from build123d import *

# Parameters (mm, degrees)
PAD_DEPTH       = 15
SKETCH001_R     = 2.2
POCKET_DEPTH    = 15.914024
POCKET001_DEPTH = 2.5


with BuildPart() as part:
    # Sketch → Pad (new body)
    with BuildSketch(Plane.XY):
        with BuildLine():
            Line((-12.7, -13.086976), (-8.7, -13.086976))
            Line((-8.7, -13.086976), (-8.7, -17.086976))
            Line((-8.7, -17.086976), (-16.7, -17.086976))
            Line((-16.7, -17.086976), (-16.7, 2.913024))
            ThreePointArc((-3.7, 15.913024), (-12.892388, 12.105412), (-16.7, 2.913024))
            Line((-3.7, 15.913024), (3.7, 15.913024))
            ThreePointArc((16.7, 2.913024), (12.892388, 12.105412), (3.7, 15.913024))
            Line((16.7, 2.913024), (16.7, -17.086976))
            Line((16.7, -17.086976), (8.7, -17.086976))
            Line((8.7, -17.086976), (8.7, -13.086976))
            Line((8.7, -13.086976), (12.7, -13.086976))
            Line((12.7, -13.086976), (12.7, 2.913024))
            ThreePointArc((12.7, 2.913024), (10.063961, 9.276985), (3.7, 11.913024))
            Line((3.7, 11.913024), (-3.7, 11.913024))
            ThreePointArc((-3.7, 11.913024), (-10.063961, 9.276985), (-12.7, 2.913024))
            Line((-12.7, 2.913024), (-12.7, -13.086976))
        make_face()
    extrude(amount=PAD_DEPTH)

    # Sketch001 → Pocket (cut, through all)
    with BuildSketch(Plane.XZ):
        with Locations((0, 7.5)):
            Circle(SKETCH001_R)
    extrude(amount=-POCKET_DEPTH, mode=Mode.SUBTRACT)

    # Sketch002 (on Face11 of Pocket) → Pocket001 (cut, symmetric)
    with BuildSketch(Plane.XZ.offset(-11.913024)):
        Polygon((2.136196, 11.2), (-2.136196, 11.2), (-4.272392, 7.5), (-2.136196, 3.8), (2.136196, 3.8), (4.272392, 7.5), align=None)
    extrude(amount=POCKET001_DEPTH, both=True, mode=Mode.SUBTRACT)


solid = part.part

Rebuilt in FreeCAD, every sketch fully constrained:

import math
import FreeCAD as App
import Part
import Sketcher

V = App.Vector
Q = App.Units.Quantity


def add_polygon(sketch, points):
    """Adds a closed chain of lines whose ends are joined by coincident constraints."""
    first, n = sketch.GeometryCount, len(points)
    for a, b in zip(points, points[1:] + points[:1]):
        sketch.addGeometry(Part.LineSegment(App.Vector(*a, 0), App.Vector(*b, 0)), False)
    for i in range(n):
        sketch.addConstraint(Sketcher.Constraint("Coincident", first + i, 2, first + (i + 1) % n, 1))

doc = App.newDocument("Part")
body = doc.addObject("PartDesign::Body", "Body")

sketch1 = body.newObject("Sketcher::SketchObject", "Sketch")
sketch1.AttachmentSupport = (doc.getObject("XY_Plane"), [""])
sketch1.MapMode = "FlatFace"
sketch1.addGeometry([
    Part.LineSegment(V(-8.7, -13.1, 0), V(-12.7, -13.1, 0)),
    Part.LineSegment(V(-12.7, -13.1, 0), V(-12.7, 2.9, 0)),
    Part.ArcOfCircle(Part.Circle(V(-3.7, 2.9, 0), V(0, 0, 1), 9), math.radians(90), math.radians(180)),
    Part.LineSegment(V(-3.7, 11.9, 0), V(3.7, 11.9, 0)),
    Part.ArcOfCircle(Part.Circle(V(3.7, 2.9, 0), V(0, 0, 1), 9), math.radians(0), math.radians(90)),
    Part.LineSegment(V(12.7, 2.9, 0), V(12.7, -13.1, 0)),
    Part.LineSegment(V(12.7, -13.1, 0), V(8.7, -13.1, 0)),
    Part.LineSegment(V(8.7, -13.1, 0), V(8.7, -17.1, 0)),
    Part.LineSegment(V(8.7, -17.1, 0), V(16.7, -17.1, 0)),
    Part.LineSegment(V(16.7, -17.1, 0), V(16.7, 2.9, 0)),
    Part.ArcOfCircle(Part.Circle(V(3.7, 2.9, 0), V(0, 0, 1), 13), math.radians(0), math.radians(90)),
    Part.LineSegment(V(3.7, 15.9, 0), V(-3.7, 15.9, 0)),
    Part.ArcOfCircle(Part.Circle(V(-3.7, 2.9, 0), V(0, 0, 1), 13), math.radians(90), math.radians(180)),
    Part.LineSegment(V(-16.7, 2.9, 0), V(-16.7, -17.1, 0)),
    Part.LineSegment(V(-16.7, -17.1, 0), V(-8.7, -17.1, 0)),
    Part.LineSegment(V(-8.7, -17.1, 0), V(-8.7, -13.1, 0)),
], False)
sketch1.addConstraint([
    Sketcher.Constraint("Coincident", 0, 2, 1, 1),
    Sketcher.Constraint("Tangent", 1, 2, 2, 2),
    Sketcher.Constraint("Tangent", 2, 1, 3, 1),
    Sketcher.Constraint("Tangent", 3, 2, 4, 2),
    Sketcher.Constraint("Tangent", 4, 1, 5, 1),
    Sketcher.Constraint("Coincident", 5, 2, 6, 1),
    Sketcher.Constraint("Coincident", 6, 2, 7, 1),
    Sketcher.Constraint("Coincident", 7, 2, 8, 1),
    Sketcher.Constraint("Coincident", 8, 2, 9, 1),
    Sketcher.Constraint("Tangent", 9, 2, 10, 1),
    Sketcher.Constraint("Tangent", 10, 2, 11, 1),
    Sketcher.Constraint("Tangent", 11, 2, 12, 1),
    Sketcher.Constraint("Tangent", 12, 2, 13, 1),
    Sketcher.Constraint("Coincident", 13, 2, 14, 1),
    Sketcher.Constraint("Coincident", 14, 2, 15, 1),
    Sketcher.Constraint("Coincident", 15, 2, 0, 1),
    Sketcher.Constraint("Horizontal", 0),
    Sketcher.Constraint("Vertical", 1),
    Sketcher.Constraint("Horizontal", 3),
    Sketcher.Constraint("Vertical", 5),
    Sketcher.Constraint("Horizontal", 6),
    Sketcher.Constraint("Vertical", 7),
    Sketcher.Constraint("Horizontal", 8),
    Sketcher.Constraint("Vertical", 9),
    Sketcher.Constraint("Horizontal", 11),
    Sketcher.Constraint("Vertical", 13),
    Sketcher.Constraint("Horizontal", 14),
    Sketcher.Constraint("Vertical", 15),
    Sketcher.Constraint("Coincident", 10, 3, 4, 3),
    Sketcher.Constraint("Coincident", 12, 3, 2, 3),
    Sketcher.Constraint("Equal", 2, 4),
    Sketcher.Constraint("Symmetric", 0, 2, 5, 2, -2),
    Sketcher.Constraint("Symmetric", 7, 2, 14, 2, -2),
    Sketcher.Constraint("Equal", 6, 7),
    Sketcher.Constraint("Radius", 2, Q("9 mm")),
    Sketcher.Constraint("Radius", 10, Q("13.000001 mm")),
    Sketcher.Constraint("DistanceX", 0, 2, 0, 1, Q("4 mm")),
    Sketcher.Constraint("DistanceY", 1, 1, 1, 2, Q("16 mm")),
    Sketcher.Constraint("DistanceX", 3, 1, 3, 2, Q("7.4 mm")),
    Sketcher.Constraint("DistanceY", -1, 1, 2, 3, Q("2.913024 mm")),
])
pad1 = body.newObject("PartDesign::Pad", "Pad")
pad1.Profile = sketch1
pad1.Length = 15

sketch2 = body.newObject("Sketcher::SketchObject", "Sketch001")
sketch2.AttachmentSupport = (doc.getObject("XZ_Plane"), [""])
sketch2.MapMode = "FlatFace"
sketch2.addGeometry(Part.Circle(V(0, 7.5, 0), V(0, 0, 1), 2.2), False)
sketch2.addConstraint([
    Sketcher.Constraint("PointOnObject", 0, 3, -2),
    Sketcher.Constraint("Diameter", 0, Q("4.4 mm")),
    Sketcher.Constraint("DistanceY", -1, 1, 0, 3, Q("7.5 mm")),
])
pocket1 = body.newObject("PartDesign::Pocket", "Pocket")
pocket1.Profile = sketch2
pocket1.Type = "ThroughAll"

sketch3 = body.newObject("Sketcher::SketchObject", "Sketch002")
sketch3.AttachmentSupport = (doc.getObject("XZ_Plane"), [""])
sketch3.MapMode = "FlatFace"
sketch3.AttachmentOffset = App.Placement(V(0, 0, -11.913024), App.Rotation())
add_polygon(sketch3, [(2.1, 11.2), (-2.1, 11.2), (-4.3, 7.5), (-2.1, 3.8), (2.1, 3.8), (4.3, 7.5)])
sketch3.addConstraint([
    Sketcher.Constraint("Horizontal", 0),
    Sketcher.Constraint("Horizontal", 3),
    Sketcher.Constraint("Symmetric", 1, 2, 4, 2, -2),
    Sketcher.Constraint("Parallel", 1, 4),
    Sketcher.Constraint("Parallel", 2, 5),
    Sketcher.Constraint("Vertical", 0, 2, 2, 2),
    Sketcher.Constraint("Vertical", 3, 2, 5, 2),
    Sketcher.Constraint("Angle", 1, Q("-120 deg")),
    Sketcher.Constraint("DistanceY", -1, 1, 0, 2, Q("11.2 mm")),
    Sketcher.Constraint("DistanceY", -1, 1, 1, 2, Q("7.5 mm")),
    Sketcher.Constraint("DistanceX", 0, 2, 0, 1, Q("4.272392 mm")),
])
pocket2 = body.newObject("PartDesign::Pocket", "Pocket001")
pocket2.Profile = sketch3
pocket2.Length = 5
pocket2.Midplane = True

doc.recompute()
